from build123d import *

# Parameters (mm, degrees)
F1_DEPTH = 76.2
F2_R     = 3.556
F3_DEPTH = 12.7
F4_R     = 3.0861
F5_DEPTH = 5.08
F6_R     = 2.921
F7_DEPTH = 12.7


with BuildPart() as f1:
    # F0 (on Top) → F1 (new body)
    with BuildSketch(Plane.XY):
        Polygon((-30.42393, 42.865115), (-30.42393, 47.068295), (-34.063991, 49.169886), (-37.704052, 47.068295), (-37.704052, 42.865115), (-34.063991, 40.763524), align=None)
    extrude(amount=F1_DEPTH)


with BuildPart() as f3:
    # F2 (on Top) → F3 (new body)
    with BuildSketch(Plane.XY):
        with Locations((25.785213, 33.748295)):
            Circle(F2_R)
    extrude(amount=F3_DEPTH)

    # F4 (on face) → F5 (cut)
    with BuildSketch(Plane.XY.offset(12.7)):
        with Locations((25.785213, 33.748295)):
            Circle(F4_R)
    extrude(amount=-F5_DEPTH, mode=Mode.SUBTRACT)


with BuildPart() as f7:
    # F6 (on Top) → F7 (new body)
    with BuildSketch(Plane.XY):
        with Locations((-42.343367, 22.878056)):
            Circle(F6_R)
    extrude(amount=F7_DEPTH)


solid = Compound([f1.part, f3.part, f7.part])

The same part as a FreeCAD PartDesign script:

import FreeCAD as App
import Part
import Sketcher

V = App.Vector
Q = App.Units.Quantity

doc = App.newDocument("Part")
body = doc.addObject("PartDesign::Body", "Body")

sketch1 = body.newObject("Sketcher::SketchObject", "Sketch")
sketch1.AttachmentSupport = (doc.getObject("XY_Plane"), [""])
sketch1.MapMode = "FlatFace"
sketch1.addGeometry([
    Part.LineSegment(V(-30.4, 42.9, 0), V(-30.4, 47.1, 0)),
    Part.LineSegment(V(-30.4, 47.1, 0), V(-34.1, 49.2, 0)),
    Part.LineSegment(V(-34.1, 49.2, 0), V(-37.7, 47.1, 0)),
    Part.LineSegment(V(-37.7, 47.1, 0), V(-37.7, 42.9, 0)),
    Part.LineSegment(V(-37.7, 42.9, 0), V(-34.1, 40.8, 0)),
    Part.LineSegment(V(-34.1, 40.8, 0), V(-30.4, 42.9, 0)),
], False)
sketch1.addConstraint([
    Sketcher.Constraint("Coincident", 0, 2, 1, 1),
    Sketcher.Constraint("Coincident", 1, 2, 2, 1),
    Sketcher.Constraint("Coincident", 2, 2, 3, 1),
    Sketcher.Constraint("Coincident", 3, 2, 4, 1),
    Sketcher.Constraint("Coincident", 4, 2, 5, 1),
    Sketcher.Constraint("Coincident", 5, 2, 0, 1),
    Sketcher.Constraint("Vertical", 0),
    Sketcher.Constraint("Vertical", 3),
    Sketcher.Constraint("Parallel", 1, 4),
    Sketcher.Constraint("Parallel", 2, 5),
    Sketcher.Constraint("Horizontal", 0, 2, 2, 2),
    Sketcher.Constraint("Horizontal", 3, 2, 5, 2),
    Sketcher.Constraint("Vertical", 1, 2, 4, 2),
    Sketcher.Constraint("Angle", 1, Q("149.999991 deg")),
    Sketcher.Constraint("DistanceY", 0, 1, 0, 2, 4.20318),
    Sketcher.Constraint("Distance", 1, 4.203181),
    Sketcher.Constraint("DistanceX", 0, 2, -1, 1, 30.42393),
    Sketcher.Constraint("DistanceY", -1, 1, 0, 2, 47.068295),
])
pad1 = body.newObject("PartDesign::Pad", "Pad")
pad1.Profile = sketch1
pad1.Length = Q("3 in")
body2 = doc.addObject("PartDesign::Body", "Body001")

sketch2 = body2.newObject("Sketcher::SketchObject", "Sketch001")
sketch2.AttachmentSupport = (doc.getObject("XY_Plane001"), [""])
sketch2.MapMode = "FlatFace"
sketch2.addGeometry(Part.Circle(V(25.8, 33.7, 0), V(0, 0, 1), 3.6), False)
sketch2.addConstraint([
    Sketcher.Constraint("Diameter", 0, Q("0.28 in")),
    Sketcher.Constraint("DistanceX", -1, 1, 0, 3, 25.785213),
    Sketcher.Constraint("DistanceY", -1, 1, 0, 3, 33.748295),
])
pad2 = body2.newObject("PartDesign::Pad", "Pad001")
pad2.Profile = sketch2
pad2.Length = Q("0.5 in")

sketch3 = body2.newObject("Sketcher::SketchObject", "Sketch002")
sketch3.AttachmentSupport = (doc.getObject("XY_Plane001"), [""])
sketch3.MapMode = "FlatFace"
sketch3.AttachmentOffset = App.Placement(V(0, 0, 0.5 * 25.4), App.Rotation())
sketch3.addGeometry(Part.Circle(V(25.8, 33.7, 0), V(0, 0, 1), 3.1), False)
sketch3.addConstraint([
    Sketcher.Constraint("Diameter", 0, Q("0.243 in")),
    Sketcher.Constraint("DistanceX", -1, 1, 0, 3, 25.785213),
    Sketcher.Constraint("DistanceY", -1, 1, 0, 3, 33.748295),
])
pocket1 = body2.newObject("PartDesign::Pocket", "Pocket")
pocket1.Profile = sketch3
pocket1.Length = Q("0.2 in")
body3 = doc.addObject("PartDesign::Body", "Body002")

sketch4 = body3.newObject("Sketcher::SketchObject", "Sketch003")
sketch4.AttachmentSupport = (doc.getObject("XY_Plane002"), [""])
sketch4.MapMode = "FlatFace"
sketch4.addGeometry(Part.Circle(V(-42.3, 22.9, 0), V(0, 0, 1), 2.9), False)
sketch4.addConstraint([
    Sketcher.Constraint("Diameter", 0, Q("0.23 in")),
    Sketcher.Constraint("DistanceX", 0, 3, -1, 1, 42.343367),
    Sketcher.Constraint("DistanceY", -1, 1, 0, 3, 22.878056),
])
pad3 = body3.newObject("PartDesign::Pad", "Pad002")
pad3.Profile = sketch4
pad3.Length = Q("0.5 in")

doc.recompute()
